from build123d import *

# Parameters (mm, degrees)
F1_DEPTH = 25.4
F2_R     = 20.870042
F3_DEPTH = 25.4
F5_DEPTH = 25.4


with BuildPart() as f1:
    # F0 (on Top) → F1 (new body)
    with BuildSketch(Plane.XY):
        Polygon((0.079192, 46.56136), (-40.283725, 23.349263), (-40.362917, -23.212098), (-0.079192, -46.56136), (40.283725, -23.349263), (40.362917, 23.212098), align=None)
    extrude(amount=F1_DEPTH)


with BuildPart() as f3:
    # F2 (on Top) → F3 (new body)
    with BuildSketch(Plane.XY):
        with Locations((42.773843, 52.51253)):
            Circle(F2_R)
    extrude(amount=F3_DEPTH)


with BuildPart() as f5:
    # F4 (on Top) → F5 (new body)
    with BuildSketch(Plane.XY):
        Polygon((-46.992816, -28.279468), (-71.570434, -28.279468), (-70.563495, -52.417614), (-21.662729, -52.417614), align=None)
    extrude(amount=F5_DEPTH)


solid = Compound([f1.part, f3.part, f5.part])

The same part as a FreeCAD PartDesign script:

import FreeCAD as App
import Part
import Sketcher
Q = App.Units.Quantity

doc = App.newDocument("Part")
params = doc.addObject("Spreadsheet::Sheet", "Params")
for row, (alias, value) in enumerate([
    ("pad1_length", "1 in"),
    ("pad2_length", "1 in"),
    ("pad3_length", "1 in"),
], start=1):
    params.set(f"A{row}", alias)
    params.set(f"B{row}", "=" + value)
    params.setAlias(f"B{row}", alias)

body = doc.addObject("PartDesign::Body", "Body")

# Sketch on XY plane
sketch1 = body.newObject("Sketcher::SketchObject", "Sketch")
sketch1.AttachmentSupport = (doc.getObject("XY_Plane"), [""])
sketch1.MapMode = "FlatFace"
sketch1.addGeometry([
    Part.LineSegment(App.Vector(0, 47, 0), App.Vector(-40, 23, 0)),  # 0
    Part.LineSegment(App.Vector(-40, 23, 0), App.Vector(-40, -23, 0)),  # 1
    Part.LineSegment(App.Vector(-40, -23, 0), App.Vector(0, -47, 0)),  # 2
    Part.LineSegment(App.Vector(0, -47, 0), App.Vector(40, -23, 0)),  # 3
    Part.LineSegment(App.Vector(40, -23, 0), App.Vector(40, 23, 0)),  # 4
    Part.LineSegment(App.Vector(40, 23, 0), App.Vector(0, 47, 0)),  # 5
], False)
sketch1.addConstraint([
    Sketcher.Constraint("Coincident", 0, 2, 1, 1),
    Sketcher.Constraint("Coincident", 1, 2, 2, 1),
    Sketcher.Constraint("Coincident", 2, 2, 3, 1),
    Sketcher.Constraint("Coincident", 3, 2, 4, 1),
    Sketcher.Constraint("Coincident", 4, 2, 5, 1),
    Sketcher.Constraint("Coincident", 5, 2, 0, 1),
    Sketcher.Constraint("Symmetric", 0, 2, 3, 2, -1, 1),
    Sketcher.Constraint("Symmetric", 1, 2, 4, 2, -1, 1),
    Sketcher.Constraint("Symmetric", 2, 2, 5, 2, -1, 1),
    Sketcher.Constraint("Equal", 0, 1),
    Sketcher.Constraint("Equal", 1, 2),
    Sketcher.Constraint("DistanceY", 3, 2, 1, 2, Q("0.0054002 in")),
    Sketcher.Constraint("DistanceY", 1, 2, -1, 1, Q("23.212098 mm")),
    Sketcher.Constraint("DistanceY", 2, 2, -1, 1, Q("46.56136 mm")),
    Sketcher.Constraint("DistanceX", 0, 2, 3, 2, Q("80.56745 mm")),
])
pad1 = body.newObject("PartDesign::Pad", "Pad")
pad1.Profile = sketch1
pad1.setExpression("Length", "Params.pad1_length")
body2 = doc.addObject("PartDesign::Body", "Body001")

# Sketch on XY plane
sketch2 = body2.newObject("Sketcher::SketchObject", "Sketch001")
sketch2.AttachmentSupport = (doc.getObject("XY_Plane001"), [""])
sketch2.MapMode = "FlatFace"
sketch2.addGeometry(Part.Circle(App.Vector(43, 53, 0), App.Vector(0, 0, 1), 21), False)
sketch2.addConstraint([
    Sketcher.Constraint("Diameter", 0, Q("41.740084 mm")),
    Sketcher.Constraint("DistanceY", -1, 1, 0, 3, Q("52.51253 mm")),
    Sketcher.Constraint("DistanceX", -1, 1, 0, 3, Q("42.773843 mm")),
])
pad2 = body2.newObject("PartDesign::Pad", "Pad001")
pad2.Profile = sketch2
pad2.setExpression("Length", "Params.pad2_length")
body3 = doc.addObject("PartDesign::Body", "Body002")

# Sketch on XY plane
sketch3 = body3.newObject("Sketcher::SketchObject", "Sketch002")
sketch3.AttachmentSupport = (doc.getObject("XY_Plane002"), [""])
sketch3.MapMode = "FlatFace"
sketch3.addGeometry([
    Part.LineSegment(App.Vector(-47, -28, 0), App.Vector(-72, -28, 0)),
    Part.LineSegment(App.Vector(-72, -28, 0), App.Vector(-71, -52, 0)),
    Part.LineSegment(App.Vector(-71, -52, 0), App.Vector(-22, -52, 0)),
    Part.LineSegment(App.Vector(-22, -52, 0), App.Vector(-47, -28, 0)),
], False)
sketch3.addConstraint([
    Sketcher.Constraint("Coincident", 0, 2, 1, 1),
    Sketcher.Constraint("Coincident", 1, 2, 2, 1),
    Sketcher.Constraint("Coincident", 2, 2, 3, 1),
    Sketcher.Constraint("Coincident", 3, 2, 0, 1),
    Sketcher.Constraint("Horizontal", 0),
    Sketcher.Constraint("Horizontal", 2),
    Sketcher.Constraint("DistanceX", 0, 2, 0, 1, Q("24.577618 mm")),
    Sketcher.Constraint("Distance", 1, Q("24.159139 mm")),
    Sketcher.Constraint("DistanceX", 2, 1, 2, 2, Q("48.900766 mm")),
    Sketcher.Constraint("DistanceY", 0, 2, -1, 1, Q("28.279468 mm")),
    Sketcher.Constraint("DistanceX", 2, 2, -1, 1, Q("21.662729 mm")),
    Sketcher.Constraint("DistanceX", 0, 2, 1, 2, Q("1.006939 mm")),
])
pad3 = body3.newObject("PartDesign::Pad", "Pad002")
pad3.Profile = sketch3
pad3.setExpression("Length", "Params.pad3_length")

doc.recompute()
